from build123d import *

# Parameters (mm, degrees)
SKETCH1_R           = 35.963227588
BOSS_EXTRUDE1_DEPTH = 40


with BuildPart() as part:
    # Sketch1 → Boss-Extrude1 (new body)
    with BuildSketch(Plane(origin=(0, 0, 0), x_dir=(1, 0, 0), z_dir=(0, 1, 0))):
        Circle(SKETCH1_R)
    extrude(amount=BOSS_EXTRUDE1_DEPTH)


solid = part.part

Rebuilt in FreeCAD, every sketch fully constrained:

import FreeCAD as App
import Part
import Sketcher
from FreeCAD import Vector

doc = App.newDocument("Part")
params = doc.addObject("Spreadsheet::Sheet", "Params")
for row, (alias, value) in enumerate([
    ("pad1_length", "40 mm"),
], start=1):
    params.set(f"A{row}", alias)
    params.set(f"B{row}", "=" + value)
    params.setAlias(f"B{row}", alias)

body = doc.addObject("PartDesign::Body", "Body")

sketch1 = doc.addObject("Sketcher::SketchObject", "Sketch")
body.addObject(sketch1)
sketch1.AttachmentSupport = (doc.XZ_Plane, [""])
sketch1.MapMode = "FlatFace"
sketch1.addGeometry(Part.Circle(Vector(0, 0, 0), Vector(0, 0, 1), 36), False)
sketch1.addConstraint([
    Sketcher.Constraint("Coincident", 0, 3, -1, 1),
    Sketcher.Constraint("Diameter", 0, 71.926455),
])
pad1 = doc.addObject("PartDesign::Pad", "Pad")
body.addObject(pad1)
pad1.Profile = sketch1
pad1.setExpression("Length", "Params.pad1_length")
pad1.Reversed = True

doc.recompute()
